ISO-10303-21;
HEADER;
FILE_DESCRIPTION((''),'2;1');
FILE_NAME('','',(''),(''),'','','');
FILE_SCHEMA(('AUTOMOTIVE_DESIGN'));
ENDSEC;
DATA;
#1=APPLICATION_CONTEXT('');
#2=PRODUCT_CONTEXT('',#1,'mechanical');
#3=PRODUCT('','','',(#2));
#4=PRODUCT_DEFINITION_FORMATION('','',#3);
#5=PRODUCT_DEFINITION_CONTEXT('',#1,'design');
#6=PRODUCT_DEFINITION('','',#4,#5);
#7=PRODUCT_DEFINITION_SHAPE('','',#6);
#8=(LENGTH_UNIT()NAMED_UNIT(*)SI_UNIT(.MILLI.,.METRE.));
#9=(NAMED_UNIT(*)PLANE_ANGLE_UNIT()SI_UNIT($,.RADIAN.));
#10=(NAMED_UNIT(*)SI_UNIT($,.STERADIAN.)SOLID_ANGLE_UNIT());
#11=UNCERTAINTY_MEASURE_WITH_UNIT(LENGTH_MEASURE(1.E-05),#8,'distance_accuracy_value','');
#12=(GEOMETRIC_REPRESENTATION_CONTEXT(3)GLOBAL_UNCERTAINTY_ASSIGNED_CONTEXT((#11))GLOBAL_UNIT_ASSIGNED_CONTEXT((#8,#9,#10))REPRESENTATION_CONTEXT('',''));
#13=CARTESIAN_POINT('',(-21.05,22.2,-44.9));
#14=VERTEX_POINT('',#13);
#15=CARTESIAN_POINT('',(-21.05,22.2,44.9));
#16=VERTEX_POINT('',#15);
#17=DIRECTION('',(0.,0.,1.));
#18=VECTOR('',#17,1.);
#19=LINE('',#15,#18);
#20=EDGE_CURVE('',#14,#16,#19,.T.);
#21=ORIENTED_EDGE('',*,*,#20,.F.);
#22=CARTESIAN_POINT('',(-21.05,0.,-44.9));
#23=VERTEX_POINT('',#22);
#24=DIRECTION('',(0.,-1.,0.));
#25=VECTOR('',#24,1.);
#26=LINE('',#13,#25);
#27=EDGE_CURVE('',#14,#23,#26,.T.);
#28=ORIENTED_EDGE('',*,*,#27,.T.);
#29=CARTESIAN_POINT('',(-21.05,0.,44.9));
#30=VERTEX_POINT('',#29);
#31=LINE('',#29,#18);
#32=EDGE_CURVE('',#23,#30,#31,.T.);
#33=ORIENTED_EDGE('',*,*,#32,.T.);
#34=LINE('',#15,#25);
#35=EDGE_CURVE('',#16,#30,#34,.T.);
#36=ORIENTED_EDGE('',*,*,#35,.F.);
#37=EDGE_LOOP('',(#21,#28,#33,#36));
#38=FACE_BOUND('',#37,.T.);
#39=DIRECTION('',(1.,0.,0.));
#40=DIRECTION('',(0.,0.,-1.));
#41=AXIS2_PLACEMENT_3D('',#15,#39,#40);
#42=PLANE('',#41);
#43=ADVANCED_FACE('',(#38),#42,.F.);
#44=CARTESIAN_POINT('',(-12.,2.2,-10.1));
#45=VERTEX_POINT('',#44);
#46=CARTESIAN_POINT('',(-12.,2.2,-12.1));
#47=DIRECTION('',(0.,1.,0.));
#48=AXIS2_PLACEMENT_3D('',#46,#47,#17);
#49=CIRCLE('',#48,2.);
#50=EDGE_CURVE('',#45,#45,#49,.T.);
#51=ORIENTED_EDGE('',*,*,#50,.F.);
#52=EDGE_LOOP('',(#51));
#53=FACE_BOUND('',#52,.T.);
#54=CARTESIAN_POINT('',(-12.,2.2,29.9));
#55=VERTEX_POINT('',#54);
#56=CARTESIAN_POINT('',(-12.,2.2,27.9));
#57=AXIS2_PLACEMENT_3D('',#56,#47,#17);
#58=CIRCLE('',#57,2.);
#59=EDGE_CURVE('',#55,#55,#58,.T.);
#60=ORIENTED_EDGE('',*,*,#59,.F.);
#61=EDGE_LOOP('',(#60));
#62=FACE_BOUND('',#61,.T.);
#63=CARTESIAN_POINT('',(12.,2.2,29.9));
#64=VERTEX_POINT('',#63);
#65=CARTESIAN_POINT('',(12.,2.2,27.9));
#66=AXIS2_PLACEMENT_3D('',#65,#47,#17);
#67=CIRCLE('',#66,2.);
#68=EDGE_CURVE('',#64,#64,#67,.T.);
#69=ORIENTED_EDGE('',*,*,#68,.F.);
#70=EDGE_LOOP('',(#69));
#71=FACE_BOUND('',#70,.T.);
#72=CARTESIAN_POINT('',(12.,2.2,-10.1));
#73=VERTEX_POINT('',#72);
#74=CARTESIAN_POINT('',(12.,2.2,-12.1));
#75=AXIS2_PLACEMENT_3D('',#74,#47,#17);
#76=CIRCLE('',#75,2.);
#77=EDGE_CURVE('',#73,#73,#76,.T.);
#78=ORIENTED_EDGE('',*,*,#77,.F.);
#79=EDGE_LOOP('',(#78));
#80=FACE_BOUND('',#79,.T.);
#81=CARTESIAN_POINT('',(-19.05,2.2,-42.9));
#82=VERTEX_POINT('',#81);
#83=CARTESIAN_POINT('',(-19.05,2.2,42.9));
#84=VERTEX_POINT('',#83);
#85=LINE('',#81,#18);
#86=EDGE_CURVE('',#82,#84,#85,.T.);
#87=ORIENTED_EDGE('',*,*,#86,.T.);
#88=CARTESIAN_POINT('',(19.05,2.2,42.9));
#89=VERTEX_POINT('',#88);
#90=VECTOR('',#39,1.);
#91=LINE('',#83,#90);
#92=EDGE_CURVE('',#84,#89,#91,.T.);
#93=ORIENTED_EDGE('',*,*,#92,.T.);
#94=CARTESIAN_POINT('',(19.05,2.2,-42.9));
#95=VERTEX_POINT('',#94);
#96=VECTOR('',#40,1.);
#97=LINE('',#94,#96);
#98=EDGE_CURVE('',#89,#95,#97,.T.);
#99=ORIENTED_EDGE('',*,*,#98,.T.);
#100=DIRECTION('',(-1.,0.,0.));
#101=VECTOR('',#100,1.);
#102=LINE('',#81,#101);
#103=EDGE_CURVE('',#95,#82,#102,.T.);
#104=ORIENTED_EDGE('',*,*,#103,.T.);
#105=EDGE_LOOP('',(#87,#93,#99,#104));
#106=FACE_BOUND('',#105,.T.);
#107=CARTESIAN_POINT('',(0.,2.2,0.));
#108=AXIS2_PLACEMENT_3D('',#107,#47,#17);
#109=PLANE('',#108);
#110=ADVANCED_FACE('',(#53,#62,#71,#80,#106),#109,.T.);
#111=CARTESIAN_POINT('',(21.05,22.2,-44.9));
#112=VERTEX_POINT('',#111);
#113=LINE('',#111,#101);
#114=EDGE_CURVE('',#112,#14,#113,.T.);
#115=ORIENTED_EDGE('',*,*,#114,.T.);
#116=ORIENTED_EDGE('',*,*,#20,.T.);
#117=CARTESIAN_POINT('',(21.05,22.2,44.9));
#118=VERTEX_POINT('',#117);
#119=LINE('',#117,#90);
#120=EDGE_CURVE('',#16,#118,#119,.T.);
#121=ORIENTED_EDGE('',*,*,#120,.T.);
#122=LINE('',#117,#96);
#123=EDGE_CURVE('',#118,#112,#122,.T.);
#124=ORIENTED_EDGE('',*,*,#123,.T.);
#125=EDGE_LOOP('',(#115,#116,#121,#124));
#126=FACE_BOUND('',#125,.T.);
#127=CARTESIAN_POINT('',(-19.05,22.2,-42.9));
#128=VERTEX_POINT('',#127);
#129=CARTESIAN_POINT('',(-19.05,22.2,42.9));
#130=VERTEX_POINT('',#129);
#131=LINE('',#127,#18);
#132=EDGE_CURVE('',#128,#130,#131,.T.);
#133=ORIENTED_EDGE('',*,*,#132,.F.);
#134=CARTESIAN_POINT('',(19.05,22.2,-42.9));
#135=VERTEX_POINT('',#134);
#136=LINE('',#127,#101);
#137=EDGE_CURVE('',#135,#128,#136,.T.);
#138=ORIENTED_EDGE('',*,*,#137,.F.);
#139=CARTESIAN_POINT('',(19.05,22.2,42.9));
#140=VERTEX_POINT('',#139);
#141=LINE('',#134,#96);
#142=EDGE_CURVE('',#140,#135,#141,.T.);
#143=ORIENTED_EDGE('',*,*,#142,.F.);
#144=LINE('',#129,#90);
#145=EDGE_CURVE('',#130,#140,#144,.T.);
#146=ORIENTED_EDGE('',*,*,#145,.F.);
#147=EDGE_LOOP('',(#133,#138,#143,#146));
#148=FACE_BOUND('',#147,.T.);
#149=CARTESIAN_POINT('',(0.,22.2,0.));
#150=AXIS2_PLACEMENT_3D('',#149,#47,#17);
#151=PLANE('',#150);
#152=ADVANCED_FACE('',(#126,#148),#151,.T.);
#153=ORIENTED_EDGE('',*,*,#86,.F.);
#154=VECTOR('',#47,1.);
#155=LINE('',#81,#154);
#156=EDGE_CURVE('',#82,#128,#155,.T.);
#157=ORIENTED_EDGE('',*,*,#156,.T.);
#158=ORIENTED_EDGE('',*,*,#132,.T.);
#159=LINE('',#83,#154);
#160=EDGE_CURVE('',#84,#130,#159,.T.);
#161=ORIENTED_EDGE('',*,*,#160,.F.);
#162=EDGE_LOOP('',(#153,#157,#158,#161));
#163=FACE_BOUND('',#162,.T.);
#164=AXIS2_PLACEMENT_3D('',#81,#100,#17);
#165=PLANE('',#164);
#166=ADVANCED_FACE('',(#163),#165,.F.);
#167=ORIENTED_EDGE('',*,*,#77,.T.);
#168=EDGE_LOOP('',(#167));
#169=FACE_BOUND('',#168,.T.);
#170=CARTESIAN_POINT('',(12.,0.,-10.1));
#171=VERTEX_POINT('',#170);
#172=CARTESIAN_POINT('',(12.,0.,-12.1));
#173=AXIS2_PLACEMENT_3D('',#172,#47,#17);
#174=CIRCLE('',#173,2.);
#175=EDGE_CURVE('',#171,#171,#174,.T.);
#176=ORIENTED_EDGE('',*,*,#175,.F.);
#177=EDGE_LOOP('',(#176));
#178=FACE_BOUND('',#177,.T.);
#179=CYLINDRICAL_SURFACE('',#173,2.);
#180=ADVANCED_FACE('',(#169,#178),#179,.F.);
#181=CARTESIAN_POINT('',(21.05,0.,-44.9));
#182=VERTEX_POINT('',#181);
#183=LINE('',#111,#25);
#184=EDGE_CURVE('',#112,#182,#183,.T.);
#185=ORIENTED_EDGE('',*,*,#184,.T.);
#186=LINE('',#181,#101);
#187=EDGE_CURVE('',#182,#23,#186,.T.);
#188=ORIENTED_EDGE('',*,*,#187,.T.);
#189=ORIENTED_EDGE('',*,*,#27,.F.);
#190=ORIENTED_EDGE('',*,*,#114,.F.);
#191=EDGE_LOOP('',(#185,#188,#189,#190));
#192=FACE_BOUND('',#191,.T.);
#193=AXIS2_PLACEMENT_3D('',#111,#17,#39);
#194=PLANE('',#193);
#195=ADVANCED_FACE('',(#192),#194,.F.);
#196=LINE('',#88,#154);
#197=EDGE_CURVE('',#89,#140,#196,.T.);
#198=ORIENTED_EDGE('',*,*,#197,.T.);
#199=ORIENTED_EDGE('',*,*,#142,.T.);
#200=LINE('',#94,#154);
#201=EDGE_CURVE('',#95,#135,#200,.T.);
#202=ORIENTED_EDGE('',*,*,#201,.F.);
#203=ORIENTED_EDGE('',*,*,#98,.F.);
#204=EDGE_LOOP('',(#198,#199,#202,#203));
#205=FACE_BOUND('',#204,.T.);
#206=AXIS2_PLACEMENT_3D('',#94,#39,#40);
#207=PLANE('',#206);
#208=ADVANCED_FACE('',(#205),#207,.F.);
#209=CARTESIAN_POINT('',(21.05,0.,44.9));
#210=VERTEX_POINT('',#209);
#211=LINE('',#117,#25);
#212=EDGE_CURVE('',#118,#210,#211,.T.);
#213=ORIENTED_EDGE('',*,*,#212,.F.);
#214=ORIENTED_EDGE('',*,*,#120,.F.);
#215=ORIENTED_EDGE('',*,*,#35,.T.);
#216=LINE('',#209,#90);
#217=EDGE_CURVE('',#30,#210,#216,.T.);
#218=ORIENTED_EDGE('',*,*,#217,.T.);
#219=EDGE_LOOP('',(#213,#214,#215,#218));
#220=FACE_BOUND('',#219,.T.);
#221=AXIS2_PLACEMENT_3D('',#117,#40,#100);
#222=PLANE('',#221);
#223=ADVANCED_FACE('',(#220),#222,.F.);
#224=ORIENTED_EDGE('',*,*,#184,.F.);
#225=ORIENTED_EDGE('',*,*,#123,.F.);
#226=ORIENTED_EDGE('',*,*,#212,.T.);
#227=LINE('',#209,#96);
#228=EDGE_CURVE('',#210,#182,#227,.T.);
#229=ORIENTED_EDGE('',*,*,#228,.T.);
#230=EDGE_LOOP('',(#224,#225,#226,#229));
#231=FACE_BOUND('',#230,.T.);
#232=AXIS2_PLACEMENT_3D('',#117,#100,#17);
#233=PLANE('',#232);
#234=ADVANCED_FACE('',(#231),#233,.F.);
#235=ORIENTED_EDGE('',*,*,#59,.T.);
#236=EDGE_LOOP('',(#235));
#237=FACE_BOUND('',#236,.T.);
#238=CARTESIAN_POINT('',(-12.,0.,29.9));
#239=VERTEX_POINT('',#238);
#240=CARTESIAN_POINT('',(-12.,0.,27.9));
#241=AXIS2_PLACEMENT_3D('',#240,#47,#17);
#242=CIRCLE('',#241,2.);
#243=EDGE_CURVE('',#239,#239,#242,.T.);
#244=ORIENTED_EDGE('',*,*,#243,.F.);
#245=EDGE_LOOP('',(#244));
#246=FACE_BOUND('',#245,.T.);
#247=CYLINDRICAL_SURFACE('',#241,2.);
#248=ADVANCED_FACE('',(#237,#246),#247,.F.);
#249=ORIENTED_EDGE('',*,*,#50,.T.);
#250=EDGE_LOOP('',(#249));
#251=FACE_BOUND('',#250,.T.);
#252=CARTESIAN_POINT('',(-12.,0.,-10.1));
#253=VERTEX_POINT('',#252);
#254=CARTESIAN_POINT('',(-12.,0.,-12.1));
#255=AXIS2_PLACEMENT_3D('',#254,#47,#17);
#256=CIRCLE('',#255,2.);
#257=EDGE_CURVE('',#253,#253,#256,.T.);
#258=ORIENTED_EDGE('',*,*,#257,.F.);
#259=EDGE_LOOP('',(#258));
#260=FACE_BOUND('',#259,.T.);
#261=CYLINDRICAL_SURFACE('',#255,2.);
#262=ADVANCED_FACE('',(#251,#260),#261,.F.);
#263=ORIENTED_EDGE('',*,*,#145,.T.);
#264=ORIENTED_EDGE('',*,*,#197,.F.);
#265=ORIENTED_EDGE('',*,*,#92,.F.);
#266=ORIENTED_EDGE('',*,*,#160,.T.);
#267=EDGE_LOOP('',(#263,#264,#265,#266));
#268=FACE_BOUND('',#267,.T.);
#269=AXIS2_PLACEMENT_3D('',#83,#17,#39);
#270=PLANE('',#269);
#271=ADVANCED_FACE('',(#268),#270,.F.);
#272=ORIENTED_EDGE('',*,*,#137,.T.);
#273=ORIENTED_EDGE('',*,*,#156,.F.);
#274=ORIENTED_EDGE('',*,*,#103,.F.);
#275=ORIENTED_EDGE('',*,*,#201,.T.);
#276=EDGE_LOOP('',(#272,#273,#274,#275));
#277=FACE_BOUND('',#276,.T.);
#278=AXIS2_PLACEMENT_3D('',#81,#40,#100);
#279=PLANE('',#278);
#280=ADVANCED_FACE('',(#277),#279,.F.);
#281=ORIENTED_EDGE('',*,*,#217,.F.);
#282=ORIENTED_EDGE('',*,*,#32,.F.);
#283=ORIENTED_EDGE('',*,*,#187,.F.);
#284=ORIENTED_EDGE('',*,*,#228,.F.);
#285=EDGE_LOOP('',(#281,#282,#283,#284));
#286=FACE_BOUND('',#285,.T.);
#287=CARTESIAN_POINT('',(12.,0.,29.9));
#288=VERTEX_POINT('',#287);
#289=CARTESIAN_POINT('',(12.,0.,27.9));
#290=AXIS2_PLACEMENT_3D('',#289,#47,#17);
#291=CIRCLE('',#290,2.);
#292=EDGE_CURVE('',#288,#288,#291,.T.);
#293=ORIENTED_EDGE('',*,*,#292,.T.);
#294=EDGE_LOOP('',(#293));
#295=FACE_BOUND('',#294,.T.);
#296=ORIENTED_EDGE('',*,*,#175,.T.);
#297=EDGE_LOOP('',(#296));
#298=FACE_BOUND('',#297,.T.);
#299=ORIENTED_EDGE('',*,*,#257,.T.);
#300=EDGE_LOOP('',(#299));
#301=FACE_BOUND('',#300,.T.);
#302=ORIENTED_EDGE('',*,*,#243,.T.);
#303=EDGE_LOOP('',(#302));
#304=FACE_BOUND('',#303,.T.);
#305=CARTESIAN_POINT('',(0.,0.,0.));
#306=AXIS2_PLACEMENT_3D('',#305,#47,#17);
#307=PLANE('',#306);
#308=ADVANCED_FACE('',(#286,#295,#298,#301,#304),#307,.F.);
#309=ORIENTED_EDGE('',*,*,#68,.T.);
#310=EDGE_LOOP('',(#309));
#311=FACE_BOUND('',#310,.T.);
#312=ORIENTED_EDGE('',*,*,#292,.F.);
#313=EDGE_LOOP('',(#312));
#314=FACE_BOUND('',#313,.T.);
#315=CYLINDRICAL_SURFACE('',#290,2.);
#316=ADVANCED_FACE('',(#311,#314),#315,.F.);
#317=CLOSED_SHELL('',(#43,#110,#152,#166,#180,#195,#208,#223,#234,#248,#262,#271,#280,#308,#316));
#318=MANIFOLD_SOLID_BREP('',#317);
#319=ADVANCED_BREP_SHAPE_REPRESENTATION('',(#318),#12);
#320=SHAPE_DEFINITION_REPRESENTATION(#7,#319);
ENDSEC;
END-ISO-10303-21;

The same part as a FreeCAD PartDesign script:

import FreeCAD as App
import Part
import Sketcher
from FreeCAD import Vector


def add_polygon(sketch, points):
    """Adds a closed chain of lines whose ends are joined by coincident constraints."""
    first, n = sketch.GeometryCount, len(points)
    for a, b in zip(points, points[1:] + points[:1]):
        sketch.addGeometry(Part.LineSegment(App.Vector(*a, 0), App.Vector(*b, 0)), False)
    for i in range(n):
        sketch.addConstraint(Sketcher.Constraint("Coincident", first + i, 2, first + (i + 1) % n, 1))

doc = App.newDocument("Part")
params = doc.addObject("Spreadsheet::Sheet", "Params")
for row, (alias, value) in enumerate([
    ("sketch1_width", "42.1 mm"),
    ("sketch1_height", "89.8 mm"),
    ("pad1_length", "22.2 mm"),
    ("sketch2_width", "38.1 mm"),
    ("sketch2_height", "85.8 mm"),
    ("pocket1_length", "20 mm"),
    ("sketch3_diameter", "4 mm"),
], start=1):
    params.set(f"A{row}", alias)
    params.set(f"B{row}", "=" + value)
    params.setAlias(f"B{row}", alias)

body = doc.addObject("PartDesign::Body", "Body")

# Sketch on XZ plane
sketch1 = body.newObject("Sketcher::SketchObject", "Sketch")
sketch1.AttachmentSupport = (doc.getObject("XZ_Plane"), [""])
sketch1.MapMode = "FlatFace"
add_polygon(sketch1, [(-21, -45), (-21, 45), (21, 45), (21, -45)])  # lines 0-3
sketch1.addConstraint(Sketcher.Constraint("Vertical", 0))
sketch1.addConstraint(Sketcher.Constraint("Horizontal", 1))
sketch1.addConstraint(Sketcher.Constraint("Vertical", 2))
sketch1.addConstraint(Sketcher.Constraint("Horizontal", 3))
sketch1.addConstraint(Sketcher.Constraint("Symmetric", 0, 2, 2, 2, -1, 1))
sketch1.addConstraint(Sketcher.Constraint("DistanceX", 1, 1, 1, 2, 42.1))
sketch1.addConstraint(Sketcher.Constraint("DistanceY", 0, 1, 0, 2, 89.8))
sketch1.setExpression("Constraints[9]", "Params.sketch1_width")
sketch1.setExpression("Constraints[10]", "Params.sketch1_height")
pad1 = body.newObject("PartDesign::Pad", "Pad")
pad1.Profile = sketch1
pad1.setExpression("Length", "Params.pad1_length")
pad1.Reversed = True

# Sketch on XZ plane
sketch2 = body.newObject("Sketcher::SketchObject", "Sketch001")
sketch2.AttachmentSupport = (doc.getObject("XZ_Plane"), [""])
sketch2.MapMode = "FlatFace"
sketch2.AttachmentOffset = App.Placement(Vector(0, 0, -22.2), App.Rotation())
add_polygon(sketch2, [(-19, -43), (-19, 43), (19, 43), (19, -43)])  # lines 0-3
sketch2.addConstraint(Sketcher.Constraint("Vertical", 0))
sketch2.addConstraint(Sketcher.Constraint("Horizontal", 1))
sketch2.addConstraint(Sketcher.Constraint("Vertical", 2))
sketch2.addConstraint(Sketcher.Constraint("Horizontal", 3))
sketch2.addConstraint(Sketcher.Constraint("Symmetric", 0, 2, 2, 2, -1, 1))
sketch2.addConstraint(Sketcher.Constraint("DistanceX", 1, 1, 1, 2, 38.1))
sketch2.addConstraint(Sketcher.Constraint("DistanceY", 0, 1, 0, 2, 85.8))
sketch2.setExpression("Constraints[9]", "Params.sketch2_width")
sketch2.setExpression("Constraints[10]", "Params.sketch2_height")
pocket1 = body.newObject("PartDesign::Pocket", "Pocket")
pocket1.Profile = sketch2
pocket1.setExpression("Length", "Params.pocket1_length")
pocket1.Reversed = True

# Sketch on XZ plane
sketch3 = body.newObject("Sketcher::SketchObject", "Sketch002")
sketch3.AttachmentSupport = (doc.getObject("XZ_Plane"), [""])
sketch3.MapMode = "FlatFace"
sketch3.AttachmentOffset = App.Placement(Vector(0, 0, -2.2), App.Rotation())
sketch3.addGeometry(Part.Circle(Vector(-12, 27.9, 0), Vector(0, 0, 1), 2), False)
sketch3.addGeometry(Part.Circle(Vector(-12, -12.1, 0), Vector(0, 0, 1), 2), False)
sketch3.addGeometry(Part.Circle(Vector(12, -12.1, 0), Vector(0, 0, 1), 2), False)
sketch3.addGeometry(Part.Circle(Vector(12, 27.9, 0), Vector(0, 0, 1), 2), False)
sketch3.addConstraint(Sketcher.Constraint("Equal", 0, 1))
sketch3.addConstraint(Sketcher.Constraint("Equal", 1, 2))
sketch3.addConstraint(Sketcher.Constraint("Equal", 2, 3))
sketch3.addConstraint(Sketcher.Constraint("Symmetric", 1, 3, 2, 3, -2))
sketch3.addConstraint(Sketcher.Constraint("Symmetric", 0, 3, 3, 3, -2))
sketch3.addConstraint(Sketcher.Constraint("Vertical", 0, 3, 1, 3))
sketch3.addConstraint(Sketcher.Constraint("Diameter", 0, 4.0))
sketch3.addConstraint(Sketcher.Constraint("DistanceX", 0, 3, -1, 1, 12.0))
sketch3.addConstraint(Sketcher.Constraint("DistanceY", 1, 3, 0, 3, 40.0))
sketch3.addConstraint(Sketcher.Constraint("DistanceY", -1, 1, 0, 3, 27.9))
sketch3.setExpression("Constraints[6]", "Params.sketch3_diameter")
pocket2 = body.newObject("PartDesign::Pocket", "Pocket001")
pocket2.Profile = sketch3
pocket2.Type = "ThroughAll"
pocket2.Reversed = True

doc.recompute()
